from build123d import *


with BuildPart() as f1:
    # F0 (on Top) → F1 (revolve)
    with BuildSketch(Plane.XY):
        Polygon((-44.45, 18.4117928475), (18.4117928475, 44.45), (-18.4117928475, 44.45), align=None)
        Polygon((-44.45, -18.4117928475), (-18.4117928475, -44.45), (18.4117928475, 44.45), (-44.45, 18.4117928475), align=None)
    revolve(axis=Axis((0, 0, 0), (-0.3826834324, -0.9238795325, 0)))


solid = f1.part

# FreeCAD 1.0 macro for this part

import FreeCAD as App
import Part
import Sketcher
Q = App.Units.Quantity

doc = App.newDocument("Part")
body = doc.addObject("PartDesign::Body", "Body")

# Sketch on XY plane
sketch1 = body.newObject("Sketcher::SketchObject", "Sketch")
sketch1.AttachmentSupport = (doc.getObject("XY_Plane"), [""])
sketch1.MapMode = "FlatFace"
sketch1.addGeometry(Part.LineSegment(App.Vector(18, 44, 0), App.Vector(-18, 44, 0)), False)
sketch1.addGeometry(Part.LineSegment(App.Vector(-18, 44, 0), App.Vector(-44, 18, 0)), False)
sketch1.addGeometry(Part.LineSegment(App.Vector(-44, 18, 0), App.Vector(-44, -18, 0)), False)
sketch1.addGeometry(Part.LineSegment(App.Vector(-44, -18, 0), App.Vector(-18, -44, 0)), False)
sketch1.addGeometry(Part.LineSegment(App.Vector(-18, -44, 0), App.Vector(18, 44, 0)), False)
sketch1.addGeometry(Part.LineSegment(App.Vector(18, 44, 0), App.Vector(-18, -44, 0)), True)  # axis
sketch1.addConstraint(Sketcher.Constraint("Coincident", 0, 2, 1, 1))
sketch1.addConstraint(Sketcher.Constraint("Coincident", 1, 2, 2, 1))
sketch1.addConstraint(Sketcher.Constraint("Coincident", 2, 2, 3, 1))
sketch1.addConstraint(Sketcher.Constraint("Coincident", 3, 2, 4, 1))
sketch1.addConstraint(Sketcher.Constraint("Coincident", 4, 2, 0, 1))
sketch1.addConstraint(Sketcher.Constraint("Horizontal", 0))
sketch1.addConstraint(Sketcher.Constraint("Vertical", 2))
sketch1.addConstraint(Sketcher.Constraint("Coincident", 5, 1, 4, 2))
sketch1.addConstraint(Sketcher.Constraint("Coincident", 5, 2, 3, 2))
sketch1.addConstraint(Sketcher.Constraint("Symmetric", 3, 2, 4, 2, -1, 1))
sketch1.addConstraint(Sketcher.Constraint("Perpendicular", 1, 3))
sketch1.addConstraint(Sketcher.Constraint("Vertical", 0, 2, 3, 2))
sketch1.addConstraint(Sketcher.Constraint("Equal", 0, 2))
sketch1.addConstraint(Sketcher.Constraint("Equal", 1, 3))
sketch1.addConstraint(Sketcher.Constraint("Angle", 4, Q("67.5 deg")))
sketch1.addConstraint(Sketcher.Constraint("DistanceY", 3, 2, 0, 2, 88.9))
revolution = body.newObject("PartDesign::Revolution", "Revolution")
revolution.Profile = sketch1
revolution.ReferenceAxis = (sketch1, ["Axis0"])
revolution.Angle = 360

doc.recompute()
